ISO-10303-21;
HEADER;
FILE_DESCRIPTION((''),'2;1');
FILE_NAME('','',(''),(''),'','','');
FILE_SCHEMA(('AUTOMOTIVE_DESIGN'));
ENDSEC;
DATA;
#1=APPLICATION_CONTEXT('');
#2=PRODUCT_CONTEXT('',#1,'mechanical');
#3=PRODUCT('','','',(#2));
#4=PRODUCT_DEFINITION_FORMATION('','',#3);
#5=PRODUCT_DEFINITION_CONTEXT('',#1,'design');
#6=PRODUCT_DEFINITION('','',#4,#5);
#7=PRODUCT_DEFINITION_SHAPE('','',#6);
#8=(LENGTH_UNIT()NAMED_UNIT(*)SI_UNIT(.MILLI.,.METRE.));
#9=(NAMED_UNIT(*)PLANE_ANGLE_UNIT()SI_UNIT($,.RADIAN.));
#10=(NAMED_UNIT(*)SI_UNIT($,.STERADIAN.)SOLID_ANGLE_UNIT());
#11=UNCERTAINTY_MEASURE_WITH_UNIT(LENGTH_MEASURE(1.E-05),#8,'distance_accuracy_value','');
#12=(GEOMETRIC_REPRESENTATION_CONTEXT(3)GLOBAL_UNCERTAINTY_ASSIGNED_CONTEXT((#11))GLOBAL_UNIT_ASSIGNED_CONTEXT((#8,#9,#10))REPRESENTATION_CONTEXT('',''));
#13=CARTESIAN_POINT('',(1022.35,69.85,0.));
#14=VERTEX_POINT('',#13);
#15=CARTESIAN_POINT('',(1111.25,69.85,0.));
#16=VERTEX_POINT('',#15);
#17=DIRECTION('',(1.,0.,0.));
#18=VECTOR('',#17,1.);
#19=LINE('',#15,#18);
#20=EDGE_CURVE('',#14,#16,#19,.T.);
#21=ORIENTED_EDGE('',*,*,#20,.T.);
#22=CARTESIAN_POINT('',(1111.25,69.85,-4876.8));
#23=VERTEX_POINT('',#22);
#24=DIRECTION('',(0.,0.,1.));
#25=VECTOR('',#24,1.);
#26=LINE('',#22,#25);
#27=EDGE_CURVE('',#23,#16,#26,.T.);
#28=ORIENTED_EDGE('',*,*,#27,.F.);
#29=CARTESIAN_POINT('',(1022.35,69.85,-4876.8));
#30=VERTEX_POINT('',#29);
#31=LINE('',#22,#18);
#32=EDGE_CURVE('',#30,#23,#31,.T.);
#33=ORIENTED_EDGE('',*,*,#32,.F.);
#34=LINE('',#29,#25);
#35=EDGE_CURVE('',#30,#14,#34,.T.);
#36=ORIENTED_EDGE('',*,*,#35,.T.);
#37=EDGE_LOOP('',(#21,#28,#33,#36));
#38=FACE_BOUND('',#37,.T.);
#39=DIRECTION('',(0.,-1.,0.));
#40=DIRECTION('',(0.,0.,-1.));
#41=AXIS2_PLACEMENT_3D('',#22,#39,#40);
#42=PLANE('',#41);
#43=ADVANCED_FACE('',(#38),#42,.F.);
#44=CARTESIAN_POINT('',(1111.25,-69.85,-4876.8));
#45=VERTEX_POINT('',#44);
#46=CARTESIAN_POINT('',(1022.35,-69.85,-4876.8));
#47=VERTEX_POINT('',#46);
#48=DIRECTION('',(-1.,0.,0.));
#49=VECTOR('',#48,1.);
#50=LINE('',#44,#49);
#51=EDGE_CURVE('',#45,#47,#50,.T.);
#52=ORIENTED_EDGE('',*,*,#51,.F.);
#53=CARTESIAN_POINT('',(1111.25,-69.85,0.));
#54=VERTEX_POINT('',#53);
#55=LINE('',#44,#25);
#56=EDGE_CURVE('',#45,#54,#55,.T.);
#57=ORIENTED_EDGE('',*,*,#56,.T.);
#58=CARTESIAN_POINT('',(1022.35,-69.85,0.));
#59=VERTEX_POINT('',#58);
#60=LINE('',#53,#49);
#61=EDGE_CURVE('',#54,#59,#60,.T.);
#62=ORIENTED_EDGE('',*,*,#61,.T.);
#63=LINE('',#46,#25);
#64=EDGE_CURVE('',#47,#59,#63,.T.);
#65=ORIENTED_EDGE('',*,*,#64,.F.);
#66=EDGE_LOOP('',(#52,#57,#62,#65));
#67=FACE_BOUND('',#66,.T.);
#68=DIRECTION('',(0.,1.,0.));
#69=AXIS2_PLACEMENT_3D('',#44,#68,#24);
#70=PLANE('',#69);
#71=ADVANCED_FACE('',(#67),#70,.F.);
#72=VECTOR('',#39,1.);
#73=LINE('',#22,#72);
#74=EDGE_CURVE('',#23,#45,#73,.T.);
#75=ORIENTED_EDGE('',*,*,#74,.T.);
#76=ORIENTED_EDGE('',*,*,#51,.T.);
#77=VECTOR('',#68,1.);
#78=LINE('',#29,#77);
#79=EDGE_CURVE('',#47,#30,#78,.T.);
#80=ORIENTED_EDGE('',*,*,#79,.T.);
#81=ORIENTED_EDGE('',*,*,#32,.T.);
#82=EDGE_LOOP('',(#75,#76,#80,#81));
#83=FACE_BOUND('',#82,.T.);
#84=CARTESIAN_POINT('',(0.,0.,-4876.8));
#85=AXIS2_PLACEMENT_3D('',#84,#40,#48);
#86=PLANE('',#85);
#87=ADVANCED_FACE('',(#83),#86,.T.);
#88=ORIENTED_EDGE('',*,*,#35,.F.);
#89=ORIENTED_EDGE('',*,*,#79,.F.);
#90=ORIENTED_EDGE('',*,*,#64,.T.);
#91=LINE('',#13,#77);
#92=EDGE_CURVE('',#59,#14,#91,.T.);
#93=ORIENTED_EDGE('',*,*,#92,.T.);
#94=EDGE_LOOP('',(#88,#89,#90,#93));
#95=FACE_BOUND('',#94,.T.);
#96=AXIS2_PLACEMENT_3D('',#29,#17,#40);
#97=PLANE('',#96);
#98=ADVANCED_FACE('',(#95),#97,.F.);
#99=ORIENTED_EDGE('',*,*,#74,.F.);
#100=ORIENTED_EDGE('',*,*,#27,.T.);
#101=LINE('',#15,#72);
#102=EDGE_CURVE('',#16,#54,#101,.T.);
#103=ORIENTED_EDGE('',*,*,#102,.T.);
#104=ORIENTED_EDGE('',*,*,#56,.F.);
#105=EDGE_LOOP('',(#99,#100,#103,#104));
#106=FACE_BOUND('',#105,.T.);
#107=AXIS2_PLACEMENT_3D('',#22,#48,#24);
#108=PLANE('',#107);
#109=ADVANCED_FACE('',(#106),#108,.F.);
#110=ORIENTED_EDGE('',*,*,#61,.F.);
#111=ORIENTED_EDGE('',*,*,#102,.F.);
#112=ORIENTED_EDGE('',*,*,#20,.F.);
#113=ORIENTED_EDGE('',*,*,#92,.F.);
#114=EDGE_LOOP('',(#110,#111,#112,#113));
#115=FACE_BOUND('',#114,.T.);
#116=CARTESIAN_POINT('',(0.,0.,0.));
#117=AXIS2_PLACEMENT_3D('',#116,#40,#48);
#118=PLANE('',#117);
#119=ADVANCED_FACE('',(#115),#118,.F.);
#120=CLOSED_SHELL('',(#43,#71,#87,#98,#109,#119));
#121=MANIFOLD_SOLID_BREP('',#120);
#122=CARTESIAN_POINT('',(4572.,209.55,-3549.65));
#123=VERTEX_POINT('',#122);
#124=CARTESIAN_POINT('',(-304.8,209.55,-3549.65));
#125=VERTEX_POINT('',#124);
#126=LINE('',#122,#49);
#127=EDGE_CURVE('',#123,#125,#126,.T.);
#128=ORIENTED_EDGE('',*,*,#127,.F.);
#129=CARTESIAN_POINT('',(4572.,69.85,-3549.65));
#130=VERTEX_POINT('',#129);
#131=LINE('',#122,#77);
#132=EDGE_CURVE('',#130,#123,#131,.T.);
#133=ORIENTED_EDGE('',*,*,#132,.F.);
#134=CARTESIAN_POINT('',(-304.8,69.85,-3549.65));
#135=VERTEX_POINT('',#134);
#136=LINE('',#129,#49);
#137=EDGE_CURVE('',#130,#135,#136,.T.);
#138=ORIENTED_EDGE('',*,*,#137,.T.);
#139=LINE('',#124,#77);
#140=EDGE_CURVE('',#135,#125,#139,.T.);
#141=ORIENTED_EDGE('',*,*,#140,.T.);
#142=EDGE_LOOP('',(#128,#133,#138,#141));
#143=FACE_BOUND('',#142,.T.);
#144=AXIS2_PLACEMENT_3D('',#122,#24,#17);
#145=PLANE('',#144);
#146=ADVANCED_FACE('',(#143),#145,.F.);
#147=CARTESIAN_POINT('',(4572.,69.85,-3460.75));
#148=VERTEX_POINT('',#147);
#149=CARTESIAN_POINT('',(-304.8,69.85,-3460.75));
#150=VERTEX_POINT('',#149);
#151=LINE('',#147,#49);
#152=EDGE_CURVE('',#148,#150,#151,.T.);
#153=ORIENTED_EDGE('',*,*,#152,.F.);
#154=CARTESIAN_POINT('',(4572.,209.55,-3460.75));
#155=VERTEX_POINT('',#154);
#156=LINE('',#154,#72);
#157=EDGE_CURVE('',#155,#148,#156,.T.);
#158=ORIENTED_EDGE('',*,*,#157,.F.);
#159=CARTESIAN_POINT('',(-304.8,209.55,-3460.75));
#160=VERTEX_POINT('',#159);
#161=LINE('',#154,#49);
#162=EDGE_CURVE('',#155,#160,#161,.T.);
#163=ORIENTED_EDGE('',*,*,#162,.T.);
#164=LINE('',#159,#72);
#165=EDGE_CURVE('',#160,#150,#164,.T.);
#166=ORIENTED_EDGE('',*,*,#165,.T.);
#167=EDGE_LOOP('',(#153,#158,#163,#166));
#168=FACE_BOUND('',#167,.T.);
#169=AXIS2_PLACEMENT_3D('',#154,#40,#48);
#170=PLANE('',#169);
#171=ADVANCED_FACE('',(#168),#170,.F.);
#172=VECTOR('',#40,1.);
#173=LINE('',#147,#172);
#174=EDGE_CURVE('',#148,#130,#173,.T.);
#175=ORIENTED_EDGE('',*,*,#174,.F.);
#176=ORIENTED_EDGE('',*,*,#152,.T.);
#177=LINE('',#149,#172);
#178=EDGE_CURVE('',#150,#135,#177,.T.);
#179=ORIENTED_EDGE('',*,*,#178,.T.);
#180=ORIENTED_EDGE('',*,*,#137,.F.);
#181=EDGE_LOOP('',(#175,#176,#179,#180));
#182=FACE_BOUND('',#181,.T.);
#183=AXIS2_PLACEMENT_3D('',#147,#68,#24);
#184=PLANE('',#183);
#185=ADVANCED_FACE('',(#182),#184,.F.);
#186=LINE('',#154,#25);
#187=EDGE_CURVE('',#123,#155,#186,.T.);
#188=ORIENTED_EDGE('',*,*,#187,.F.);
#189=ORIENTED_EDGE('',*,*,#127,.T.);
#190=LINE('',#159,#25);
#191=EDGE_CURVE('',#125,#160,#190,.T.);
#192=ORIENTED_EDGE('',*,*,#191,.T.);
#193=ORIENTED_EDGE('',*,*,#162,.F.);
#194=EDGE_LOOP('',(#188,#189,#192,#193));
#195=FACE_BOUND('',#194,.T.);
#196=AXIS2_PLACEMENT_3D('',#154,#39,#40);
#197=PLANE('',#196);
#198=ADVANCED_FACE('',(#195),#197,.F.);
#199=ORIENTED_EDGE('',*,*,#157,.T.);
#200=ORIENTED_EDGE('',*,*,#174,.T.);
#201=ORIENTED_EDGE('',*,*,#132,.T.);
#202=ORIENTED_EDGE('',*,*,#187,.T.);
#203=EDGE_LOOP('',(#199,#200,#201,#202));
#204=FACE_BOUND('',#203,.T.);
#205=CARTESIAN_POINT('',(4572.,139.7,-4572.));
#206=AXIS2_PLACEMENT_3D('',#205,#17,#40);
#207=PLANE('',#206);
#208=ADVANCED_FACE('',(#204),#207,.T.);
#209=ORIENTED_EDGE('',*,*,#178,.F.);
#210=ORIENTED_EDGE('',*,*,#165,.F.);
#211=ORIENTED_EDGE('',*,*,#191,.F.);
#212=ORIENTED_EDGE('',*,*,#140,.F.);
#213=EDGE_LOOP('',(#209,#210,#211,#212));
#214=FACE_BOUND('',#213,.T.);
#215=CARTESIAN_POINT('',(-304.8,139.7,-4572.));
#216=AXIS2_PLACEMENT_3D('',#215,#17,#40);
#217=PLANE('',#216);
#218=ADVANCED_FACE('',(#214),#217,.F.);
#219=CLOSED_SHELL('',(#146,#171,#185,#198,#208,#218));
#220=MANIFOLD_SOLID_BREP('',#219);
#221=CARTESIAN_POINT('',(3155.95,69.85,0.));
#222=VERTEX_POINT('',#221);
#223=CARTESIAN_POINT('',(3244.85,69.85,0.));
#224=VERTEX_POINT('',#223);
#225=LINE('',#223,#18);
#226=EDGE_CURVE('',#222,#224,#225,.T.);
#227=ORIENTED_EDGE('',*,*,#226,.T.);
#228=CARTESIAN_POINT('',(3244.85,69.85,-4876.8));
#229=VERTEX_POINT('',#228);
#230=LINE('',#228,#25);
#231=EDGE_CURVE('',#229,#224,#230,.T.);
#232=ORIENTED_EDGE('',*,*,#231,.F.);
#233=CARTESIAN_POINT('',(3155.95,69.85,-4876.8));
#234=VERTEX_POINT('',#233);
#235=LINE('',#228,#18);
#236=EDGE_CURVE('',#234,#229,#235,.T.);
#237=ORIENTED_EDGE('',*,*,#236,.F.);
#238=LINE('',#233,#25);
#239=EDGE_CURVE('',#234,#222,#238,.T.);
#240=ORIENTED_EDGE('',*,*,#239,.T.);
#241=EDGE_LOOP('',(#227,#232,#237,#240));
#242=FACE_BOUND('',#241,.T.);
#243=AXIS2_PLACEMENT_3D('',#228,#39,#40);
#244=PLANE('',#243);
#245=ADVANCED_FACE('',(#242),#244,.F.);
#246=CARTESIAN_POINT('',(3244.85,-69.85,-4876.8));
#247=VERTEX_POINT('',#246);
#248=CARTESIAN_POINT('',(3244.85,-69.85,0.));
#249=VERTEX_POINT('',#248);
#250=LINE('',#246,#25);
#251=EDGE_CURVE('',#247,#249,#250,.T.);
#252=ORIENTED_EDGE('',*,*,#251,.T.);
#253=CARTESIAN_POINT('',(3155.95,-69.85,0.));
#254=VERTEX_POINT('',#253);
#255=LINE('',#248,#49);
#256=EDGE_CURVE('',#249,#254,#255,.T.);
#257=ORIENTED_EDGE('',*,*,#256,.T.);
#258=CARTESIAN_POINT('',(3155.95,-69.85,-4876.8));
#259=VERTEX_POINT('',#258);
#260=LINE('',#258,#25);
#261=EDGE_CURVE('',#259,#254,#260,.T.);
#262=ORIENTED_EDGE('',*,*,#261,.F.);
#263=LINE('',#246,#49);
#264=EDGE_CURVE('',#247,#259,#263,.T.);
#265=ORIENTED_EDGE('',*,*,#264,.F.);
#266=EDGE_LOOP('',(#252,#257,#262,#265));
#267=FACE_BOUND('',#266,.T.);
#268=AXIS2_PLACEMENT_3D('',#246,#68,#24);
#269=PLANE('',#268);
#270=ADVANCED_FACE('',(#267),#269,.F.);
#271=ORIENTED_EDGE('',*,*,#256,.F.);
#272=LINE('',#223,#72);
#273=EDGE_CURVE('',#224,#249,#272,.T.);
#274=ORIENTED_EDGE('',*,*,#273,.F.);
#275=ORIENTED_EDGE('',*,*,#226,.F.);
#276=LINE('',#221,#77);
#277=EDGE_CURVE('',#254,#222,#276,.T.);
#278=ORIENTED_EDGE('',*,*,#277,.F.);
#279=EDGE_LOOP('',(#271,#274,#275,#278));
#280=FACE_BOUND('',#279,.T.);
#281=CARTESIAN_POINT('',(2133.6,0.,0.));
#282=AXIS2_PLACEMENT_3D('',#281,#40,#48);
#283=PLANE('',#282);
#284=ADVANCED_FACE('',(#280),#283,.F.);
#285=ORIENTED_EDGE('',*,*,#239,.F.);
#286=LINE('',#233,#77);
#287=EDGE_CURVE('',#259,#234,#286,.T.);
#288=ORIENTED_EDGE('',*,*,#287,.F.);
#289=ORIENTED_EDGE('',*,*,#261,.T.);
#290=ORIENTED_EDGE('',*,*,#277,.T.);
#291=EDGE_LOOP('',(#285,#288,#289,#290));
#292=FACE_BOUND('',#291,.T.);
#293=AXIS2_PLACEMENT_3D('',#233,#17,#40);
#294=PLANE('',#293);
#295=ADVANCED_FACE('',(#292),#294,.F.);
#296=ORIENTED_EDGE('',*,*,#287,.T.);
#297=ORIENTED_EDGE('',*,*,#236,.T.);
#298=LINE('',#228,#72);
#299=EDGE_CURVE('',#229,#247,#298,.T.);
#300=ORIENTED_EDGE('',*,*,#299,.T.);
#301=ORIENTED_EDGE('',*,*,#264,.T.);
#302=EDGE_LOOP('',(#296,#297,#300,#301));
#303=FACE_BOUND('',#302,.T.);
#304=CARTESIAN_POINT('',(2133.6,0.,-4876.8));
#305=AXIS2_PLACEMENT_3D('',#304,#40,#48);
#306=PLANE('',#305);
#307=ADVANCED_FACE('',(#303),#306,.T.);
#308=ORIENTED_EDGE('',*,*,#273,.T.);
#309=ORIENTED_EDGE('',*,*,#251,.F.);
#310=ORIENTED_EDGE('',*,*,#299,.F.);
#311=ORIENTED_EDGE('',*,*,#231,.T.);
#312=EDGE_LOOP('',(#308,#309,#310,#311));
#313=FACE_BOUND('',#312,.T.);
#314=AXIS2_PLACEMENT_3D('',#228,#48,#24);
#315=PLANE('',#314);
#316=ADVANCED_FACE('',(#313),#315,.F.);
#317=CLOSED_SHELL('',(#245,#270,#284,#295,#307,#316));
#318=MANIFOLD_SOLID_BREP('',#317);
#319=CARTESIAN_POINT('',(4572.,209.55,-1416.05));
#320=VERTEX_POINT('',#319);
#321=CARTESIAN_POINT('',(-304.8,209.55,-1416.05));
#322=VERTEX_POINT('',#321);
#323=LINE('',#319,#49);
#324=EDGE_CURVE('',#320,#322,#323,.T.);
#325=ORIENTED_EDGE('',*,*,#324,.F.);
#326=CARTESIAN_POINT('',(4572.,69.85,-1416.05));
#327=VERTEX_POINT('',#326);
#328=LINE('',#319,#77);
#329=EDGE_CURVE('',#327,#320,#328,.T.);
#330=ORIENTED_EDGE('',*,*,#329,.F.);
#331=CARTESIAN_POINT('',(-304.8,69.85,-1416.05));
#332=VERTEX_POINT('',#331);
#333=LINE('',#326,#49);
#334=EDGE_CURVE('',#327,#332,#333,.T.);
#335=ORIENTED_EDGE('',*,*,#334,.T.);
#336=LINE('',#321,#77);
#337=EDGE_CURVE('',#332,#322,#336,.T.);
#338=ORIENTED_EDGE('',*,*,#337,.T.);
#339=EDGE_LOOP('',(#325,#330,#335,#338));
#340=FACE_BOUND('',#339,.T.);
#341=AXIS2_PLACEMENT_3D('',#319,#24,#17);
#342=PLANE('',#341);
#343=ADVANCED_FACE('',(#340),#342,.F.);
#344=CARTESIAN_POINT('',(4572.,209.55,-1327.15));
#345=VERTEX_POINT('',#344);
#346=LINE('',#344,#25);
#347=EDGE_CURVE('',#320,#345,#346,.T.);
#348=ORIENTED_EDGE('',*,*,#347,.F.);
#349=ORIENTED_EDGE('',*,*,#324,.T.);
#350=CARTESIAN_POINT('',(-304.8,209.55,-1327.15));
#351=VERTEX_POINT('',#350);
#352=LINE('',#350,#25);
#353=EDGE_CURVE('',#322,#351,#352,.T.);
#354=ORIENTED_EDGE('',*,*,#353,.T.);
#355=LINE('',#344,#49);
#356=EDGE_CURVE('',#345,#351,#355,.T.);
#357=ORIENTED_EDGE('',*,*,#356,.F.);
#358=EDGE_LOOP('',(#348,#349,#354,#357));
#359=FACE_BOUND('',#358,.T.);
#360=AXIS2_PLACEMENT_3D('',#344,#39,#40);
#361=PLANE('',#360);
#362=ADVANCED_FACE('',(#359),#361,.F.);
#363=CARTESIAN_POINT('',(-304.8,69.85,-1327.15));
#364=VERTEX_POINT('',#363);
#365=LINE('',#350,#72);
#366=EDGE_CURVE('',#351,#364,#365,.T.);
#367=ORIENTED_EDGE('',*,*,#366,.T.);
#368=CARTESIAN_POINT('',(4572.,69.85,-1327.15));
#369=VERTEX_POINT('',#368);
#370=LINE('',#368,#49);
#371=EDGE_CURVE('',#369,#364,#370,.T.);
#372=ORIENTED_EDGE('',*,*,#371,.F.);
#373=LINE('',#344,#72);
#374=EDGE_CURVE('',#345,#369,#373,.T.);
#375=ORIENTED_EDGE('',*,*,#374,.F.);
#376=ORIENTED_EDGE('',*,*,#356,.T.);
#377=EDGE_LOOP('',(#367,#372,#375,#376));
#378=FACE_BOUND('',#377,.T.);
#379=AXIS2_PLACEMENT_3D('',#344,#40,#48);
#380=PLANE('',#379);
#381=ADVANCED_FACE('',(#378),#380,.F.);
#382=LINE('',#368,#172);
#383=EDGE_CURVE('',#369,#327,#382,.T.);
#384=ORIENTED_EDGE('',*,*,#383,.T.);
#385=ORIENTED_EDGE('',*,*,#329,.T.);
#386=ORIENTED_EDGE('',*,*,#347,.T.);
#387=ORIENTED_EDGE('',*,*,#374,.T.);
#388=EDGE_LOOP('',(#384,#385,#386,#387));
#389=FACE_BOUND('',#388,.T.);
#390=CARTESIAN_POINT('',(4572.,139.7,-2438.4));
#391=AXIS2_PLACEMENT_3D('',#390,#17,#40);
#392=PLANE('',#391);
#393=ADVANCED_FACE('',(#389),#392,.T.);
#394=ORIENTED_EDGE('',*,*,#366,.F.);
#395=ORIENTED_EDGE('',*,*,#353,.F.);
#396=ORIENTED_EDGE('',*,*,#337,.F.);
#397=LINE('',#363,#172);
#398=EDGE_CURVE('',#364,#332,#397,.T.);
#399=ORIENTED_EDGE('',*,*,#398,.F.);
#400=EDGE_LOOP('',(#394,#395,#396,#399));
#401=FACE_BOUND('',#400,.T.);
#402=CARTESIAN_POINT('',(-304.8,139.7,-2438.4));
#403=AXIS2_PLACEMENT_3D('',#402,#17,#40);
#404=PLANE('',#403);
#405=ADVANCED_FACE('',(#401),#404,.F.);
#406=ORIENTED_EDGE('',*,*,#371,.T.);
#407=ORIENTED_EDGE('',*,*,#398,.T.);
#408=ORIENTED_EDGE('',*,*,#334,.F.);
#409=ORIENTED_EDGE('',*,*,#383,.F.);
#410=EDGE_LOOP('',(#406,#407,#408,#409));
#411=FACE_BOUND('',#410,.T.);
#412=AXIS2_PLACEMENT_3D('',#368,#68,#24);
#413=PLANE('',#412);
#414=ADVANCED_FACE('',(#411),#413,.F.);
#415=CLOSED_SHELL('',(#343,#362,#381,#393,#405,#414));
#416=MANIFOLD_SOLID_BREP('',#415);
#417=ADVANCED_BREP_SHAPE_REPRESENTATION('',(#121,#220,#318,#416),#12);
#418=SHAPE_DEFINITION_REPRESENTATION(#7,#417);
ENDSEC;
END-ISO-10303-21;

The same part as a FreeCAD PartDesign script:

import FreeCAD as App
import Part
import Sketcher

V = App.Vector
Q = App.Units.Quantity

doc = App.newDocument("Part")
body = doc.addObject("PartDesign::Body", "Body")

sketch1 = doc.addObject("Sketcher::SketchObject", "Sketch")
body.addObject(sketch1)
sketch1.AttachmentSupport = (doc.XY_Plane, [""])
sketch1.MapMode = "FlatFace"
sketch1.addGeometry(Part.LineSegment(V(1111, 70, 0), V(1111, -70, 0)), False)
sketch1.addGeometry(Part.LineSegment(V(1111, -70, 0), V(1022, -70, 0)), False)
sketch1.addGeometry(Part.LineSegment(V(1022, -70, 0), V(1022, 70, 0)), False)
sketch1.addGeometry(Part.LineSegment(V(1022, 70, 0), V(1111, 70, 0)), False)
sketch1.addConstraint(Sketcher.Constraint("Coincident", 0, 2, 1, 1))
sketch1.addConstraint(Sketcher.Constraint("Coincident", 1, 2, 2, 1))
sketch1.addConstraint(Sketcher.Constraint("Coincident", 2, 2, 3, 1))
sketch1.addConstraint(Sketcher.Constraint("Coincident", 3, 2, 0, 1))
sketch1.addConstraint(Sketcher.Constraint("Vertical", 0))
sketch1.addConstraint(Sketcher.Constraint("Horizontal", 1))
sketch1.addConstraint(Sketcher.Constraint("Vertical", 2))
sketch1.addConstraint(Sketcher.Constraint("Horizontal", 3))
sketch1.addConstraint(Sketcher.Constraint("DistanceX", 1, 2, 1, 1, Q("3.5 in")))
sketch1.addConstraint(Sketcher.Constraint("DistanceY", 0, 2, 0, 1, Q("5.5 in")))
sketch1.addConstraint(Sketcher.Constraint("DistanceX", -1, 1, 0, 2, Q("43.75 in")))
sketch1.addConstraint(Sketcher.Constraint("DistanceY", 0, 2, -1, 1, Q("2.75 in")))
pad1 = doc.addObject("PartDesign::Pad", "Pad")
body.addObject(pad1)
pad1.Profile = sketch1
pad1.Length = Q("192 in")
pad1.Reversed = True
body2 = doc.addObject("PartDesign::Body", "Body001")

sketch2 = doc.addObject("Sketcher::SketchObject", "Sketch001")
body2.addObject(sketch2)
sketch2.AttachmentSupport = (doc.getObject("XY_Plane001"), [""])
sketch2.MapMode = "FlatFace"
sketch2.addGeometry(Part.LineSegment(V(3245, 70, 0), V(3245, -70, 0)), False)
sketch2.addGeometry(Part.LineSegment(V(3245, -70, 0), V(3156, -70, 0)), False)
sketch2.addGeometry(Part.LineSegment(V(3156, -70, 0), V(3156, 70, 0)), False)
sketch2.addGeometry(Part.LineSegment(V(3156, 70, 0), V(3245, 70, 0)), False)
sketch2.addConstraint(Sketcher.Constraint("Coincident", 0, 2, 1, 1))
sketch2.addConstraint(Sketcher.Constraint("Coincident", 1, 2, 2, 1))
sketch2.addConstraint(Sketcher.Constraint("Coincident", 2, 2, 3, 1))
sketch2.addConstraint(Sketcher.Constraint("Coincident", 3, 2, 0, 1))
sketch2.addConstraint(Sketcher.Constraint("Vertical", 0))
sketch2.addConstraint(Sketcher.Constraint("Horizontal", 1))
sketch2.addConstraint(Sketcher.Constraint("Vertical", 2))
sketch2.addConstraint(Sketcher.Constraint("Horizontal", 3))
sketch2.addConstraint(Sketcher.Constraint("DistanceX", 1, 2, 1, 1, Q("3.5 in")))
sketch2.addConstraint(Sketcher.Constraint("DistanceY", 0, 2, 0, 1, Q("5.5 in")))
sketch2.addConstraint(Sketcher.Constraint("DistanceX", -1, 1, 0, 2, Q("127.75 in")))
sketch2.addConstraint(Sketcher.Constraint("DistanceY", 0, 2, -1, 1, Q("2.75 in")))
pad2 = doc.addObject("PartDesign::Pad", "Pad001")
body2.addObject(pad2)
pad2.Profile = sketch2
pad2.Length = Q("192 in")
pad2.Reversed = True
body3 = doc.addObject("PartDesign::Body", "Body002")

sketch3 = doc.addObject("Sketcher::SketchObject", "Sketch002")
body3.addObject(sketch3)
sketch3.AttachmentSupport = (doc.getObject("YZ_Plane002"), [""])
sketch3.MapMode = "FlatFace"
sketch3.AttachmentOffset = App.Placement(V(0, 0, -12 * 25.4), App.Rotation())
sketch3.addGeometry(Part.LineSegment(V(210, -3461, 0), V(70, -3461, 0)), False)
sketch3.addGeometry(Part.LineSegment(V(70, -3461, 0), V(70, -3550, 0)), False)
sketch3.addGeometry(Part.LineSegment(V(70, -3550, 0), V(210, -3550, 0)), False)
sketch3.addGeometry(Part.LineSegment(V(210, -3550, 0), V(210, -3461, 0)), False)
sketch3.addConstraint(Sketcher.Constraint("Coincident", 0, 2, 1, 1))
sketch3.addConstraint(Sketcher.Constraint("Coincident", 1, 2, 2, 1))
sketch3.addConstraint(Sketcher.Constraint("Coincident", 2, 2, 3, 1))
sketch3.addConstraint(Sketcher.Constraint("Coincident", 3, 2, 0, 1))
sketch3.addConstraint(Sketcher.Constraint("Horizontal", 0))
sketch3.addConstraint(Sketcher.Constraint("Vertical", 1))
sketch3.addConstraint(Sketcher.Constraint("Horizontal", 2))
sketch3.addConstraint(Sketcher.Constraint("Vertical", 3))
sketch3.addConstraint(Sketcher.Constraint("DistanceX", 0, 2, 0, 1, Q("5.5 in")))
sketch3.addConstraint(Sketcher.Constraint("DistanceY", 1, 2, 1, 1, Q("3.5 in")))
sketch3.addConstraint(Sketcher.Constraint("DistanceX", -1, 1, 0, 2, Q("2.75 in")))
sketch3.addConstraint(Sketcher.Constraint("DistanceY", 0, 2, -1, 1, Q("136.25 in")))
pad3 = doc.addObject("PartDesign::Pad", "Pad002")
body3.addObject(pad3)
pad3.Profile = sketch3
pad3.Length = Q("192 in")
body4 = doc.addObject("PartDesign::Body", "Body003")

sketch4 = doc.addObject("Sketcher::SketchObject", "Sketch003")
body4.addObject(sketch4)
sketch4.AttachmentSupport = (doc.getObject("YZ_Plane003"), [""])
sketch4.MapMode = "FlatFace"
sketch4.AttachmentOffset = App.Placement(V(0, 0, 180 * 25.4), App.Rotation())
sketch4.addGeometry(Part.LineSegment(V(210, -1416, 0), V(70, -1416, 0)), False)
sketch4.addGeometry(Part.LineSegment(V(70, -1416, 0), V(70, -1327, 0)), False)
sketch4.addGeometry(Part.LineSegment(V(70, -1327, 0), V(210, -1327, 0)), False)
sketch4.addGeometry(Part.LineSegment(V(210, -1327, 0), V(210, -1416, 0)), False)
sketch4.addConstraint(Sketcher.Constraint("Coincident", 0, 2, 1, 1))
sketch4.addConstraint(Sketcher.Constraint("Coincident", 1, 2, 2, 1))
sketch4.addConstraint(Sketcher.Constraint("Coincident", 2, 2, 3, 1))
sketch4.addConstraint(Sketcher.Constraint("Coincident", 3, 2, 0, 1))
sketch4.addConstraint(Sketcher.Constraint("Horizontal", 0))
sketch4.addConstraint(Sketcher.Constraint("Vertical", 1))
sketch4.addConstraint(Sketcher.Constraint("Horizontal", 2))
sketch4.addConstraint(Sketcher.Constraint("Vertical", 3))
sketch4.addConstraint(Sketcher.Constraint("DistanceX", 0, 2, 0, 1, Q("5.5 in")))
sketch4.addConstraint(Sketcher.Constraint("DistanceY", 1, 1, 1, 2, Q("3.5 in")))
sketch4.addConstraint(Sketcher.Constraint("DistanceX", -1, 1, 0, 2, Q("2.75 in")))
sketch4.addConstraint(Sketcher.Constraint("DistanceY", 0, 2, -1, 1, Q("55.75 in")))
pad4 = doc.addObject("PartDesign::Pad", "Pad003")
body4.addObject(pad4)
pad4.Profile = sketch4
pad4.Length = Q("192 in")
pad4.Reversed = True

doc.recompute()
